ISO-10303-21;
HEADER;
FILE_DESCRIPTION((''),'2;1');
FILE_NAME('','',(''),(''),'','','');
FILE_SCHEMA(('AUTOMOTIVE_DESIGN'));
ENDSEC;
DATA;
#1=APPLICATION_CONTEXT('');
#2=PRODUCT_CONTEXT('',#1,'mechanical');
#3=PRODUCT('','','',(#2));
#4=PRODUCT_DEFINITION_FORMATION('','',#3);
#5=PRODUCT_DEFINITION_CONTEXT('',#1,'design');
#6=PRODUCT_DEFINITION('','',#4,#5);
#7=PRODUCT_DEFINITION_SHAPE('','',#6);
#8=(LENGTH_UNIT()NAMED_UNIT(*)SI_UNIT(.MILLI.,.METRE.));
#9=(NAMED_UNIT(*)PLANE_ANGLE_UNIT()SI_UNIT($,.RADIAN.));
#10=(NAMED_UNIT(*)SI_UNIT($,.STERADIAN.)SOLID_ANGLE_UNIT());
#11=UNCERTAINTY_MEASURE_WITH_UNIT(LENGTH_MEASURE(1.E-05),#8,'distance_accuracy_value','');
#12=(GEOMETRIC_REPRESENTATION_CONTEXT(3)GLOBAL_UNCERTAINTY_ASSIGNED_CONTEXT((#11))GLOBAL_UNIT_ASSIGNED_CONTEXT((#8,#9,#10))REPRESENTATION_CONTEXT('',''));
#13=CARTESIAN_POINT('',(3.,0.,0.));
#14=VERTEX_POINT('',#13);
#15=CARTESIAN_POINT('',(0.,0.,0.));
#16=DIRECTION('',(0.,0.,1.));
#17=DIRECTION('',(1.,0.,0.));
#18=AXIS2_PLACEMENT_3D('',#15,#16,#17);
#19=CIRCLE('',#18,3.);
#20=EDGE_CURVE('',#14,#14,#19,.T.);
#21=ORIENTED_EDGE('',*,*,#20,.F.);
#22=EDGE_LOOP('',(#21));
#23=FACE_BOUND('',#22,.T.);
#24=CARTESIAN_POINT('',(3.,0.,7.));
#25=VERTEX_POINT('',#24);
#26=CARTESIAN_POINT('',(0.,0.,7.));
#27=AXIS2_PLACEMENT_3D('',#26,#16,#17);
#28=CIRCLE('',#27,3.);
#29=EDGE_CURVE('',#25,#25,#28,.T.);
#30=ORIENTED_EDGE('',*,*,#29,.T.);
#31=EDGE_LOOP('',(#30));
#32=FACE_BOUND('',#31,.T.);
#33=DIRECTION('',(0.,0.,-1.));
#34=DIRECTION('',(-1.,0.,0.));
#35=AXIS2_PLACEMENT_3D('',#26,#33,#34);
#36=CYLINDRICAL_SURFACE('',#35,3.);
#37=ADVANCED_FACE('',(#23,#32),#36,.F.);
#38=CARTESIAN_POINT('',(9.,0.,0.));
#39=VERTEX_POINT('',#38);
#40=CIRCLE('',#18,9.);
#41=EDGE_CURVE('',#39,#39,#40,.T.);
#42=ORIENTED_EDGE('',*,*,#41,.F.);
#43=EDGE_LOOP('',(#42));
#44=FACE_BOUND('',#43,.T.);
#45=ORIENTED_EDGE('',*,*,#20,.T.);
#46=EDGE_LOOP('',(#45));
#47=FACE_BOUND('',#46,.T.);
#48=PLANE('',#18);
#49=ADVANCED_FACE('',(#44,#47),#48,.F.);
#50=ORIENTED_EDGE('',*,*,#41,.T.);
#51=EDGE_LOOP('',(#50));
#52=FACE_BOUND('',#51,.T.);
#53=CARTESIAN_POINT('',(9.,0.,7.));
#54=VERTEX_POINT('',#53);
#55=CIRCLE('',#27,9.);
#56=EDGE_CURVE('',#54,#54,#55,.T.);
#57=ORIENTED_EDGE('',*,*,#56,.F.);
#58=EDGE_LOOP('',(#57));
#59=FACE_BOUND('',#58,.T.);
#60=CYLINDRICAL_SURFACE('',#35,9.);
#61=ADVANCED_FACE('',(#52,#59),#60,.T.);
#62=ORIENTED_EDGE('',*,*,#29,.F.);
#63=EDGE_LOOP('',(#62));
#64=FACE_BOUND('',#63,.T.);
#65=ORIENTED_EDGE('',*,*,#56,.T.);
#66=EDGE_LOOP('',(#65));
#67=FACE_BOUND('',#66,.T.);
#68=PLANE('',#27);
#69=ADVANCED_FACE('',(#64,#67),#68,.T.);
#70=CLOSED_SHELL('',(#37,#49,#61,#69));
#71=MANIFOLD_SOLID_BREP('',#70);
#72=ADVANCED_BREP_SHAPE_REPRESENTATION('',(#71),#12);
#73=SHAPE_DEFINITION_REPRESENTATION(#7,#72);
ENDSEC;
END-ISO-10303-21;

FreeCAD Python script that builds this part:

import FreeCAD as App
import Part
import Sketcher
from FreeCAD import Vector
Q = App.Units.Quantity

doc = App.newDocument("Part")
body = doc.addObject("PartDesign::Body", "Body")

# Sketch on XY plane
sketch1 = body.newObject("Sketcher::SketchObject", "Sketch")
sketch1.AttachmentSupport = (doc.getObject("XY_Plane"), [""])
sketch1.MapMode = "FlatFace"
sketch1.addGeometry([
    Part.Circle(Vector(0, 0, 0), Vector(0, 0, 1), 9),
    Part.Circle(Vector(0, 0, 0), Vector(0, 0, 1), 3),
], False)
sketch1.addConstraint([
    Sketcher.Constraint("Coincident", 0, 3, -1, 1),
    Sketcher.Constraint("Coincident", 1, 3, -1, 1),
    Sketcher.Constraint("Diameter", 0, Q("18 mm")),
    Sketcher.Constraint("Diameter", 1, Q("6 mm")),
])
pad1 = body.newObject("PartDesign::Pad", "Pad")
pad1.Profile = sketch1
pad1.Length = 7

doc.recompute()
